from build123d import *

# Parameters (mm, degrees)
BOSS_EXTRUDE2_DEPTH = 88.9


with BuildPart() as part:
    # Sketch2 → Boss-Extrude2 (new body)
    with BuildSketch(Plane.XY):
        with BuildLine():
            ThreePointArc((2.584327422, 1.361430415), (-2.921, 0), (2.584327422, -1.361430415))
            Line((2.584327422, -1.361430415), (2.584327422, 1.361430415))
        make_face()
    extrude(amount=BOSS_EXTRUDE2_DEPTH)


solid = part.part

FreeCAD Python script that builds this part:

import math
import FreeCAD as App
import Part
import Sketcher
from FreeCAD import Vector
Q = App.Units.Quantity

doc = App.newDocument("Part")
body = doc.addObject("PartDesign::Body", "Body")

# Sketch on XY plane
sketch1 = body.newObject("Sketcher::SketchObject", "Sketch")
sketch1.AttachmentSupport = (doc.getObject("XY_Plane"), [""])
sketch1.MapMode = "FlatFace"
sketch1.addGeometry([
    Part.ArcOfCircle(Part.Circle(Vector(0, 0, 0), Vector(0, 0, 1), 2.9), math.radians(28), math.radians(332)),
    Part.LineSegment(Vector(2.6, -1.4, 0), Vector(2.6, 1.4, 0)),
], False)
sketch1.addConstraint([
    Sketcher.Constraint("Coincident", 0, 1, 1, 2),
    Sketcher.Constraint("Coincident", 1, 1, 0, 2),
    Sketcher.Constraint("Vertical", 1),
    Sketcher.Constraint("Coincident", 0, 3, -1, 1),
    Sketcher.Constraint("Radius", 0, Q("0.115 in")),
    Sketcher.Constraint("DistanceY", 1, 1, 1, 2, Q("2.722861 mm")),
])
pad1 = body.newObject("PartDesign::Pad", "Pad")
pad1.Profile = sketch1
pad1.Length = Q("3.5 in")

doc.recompute()
